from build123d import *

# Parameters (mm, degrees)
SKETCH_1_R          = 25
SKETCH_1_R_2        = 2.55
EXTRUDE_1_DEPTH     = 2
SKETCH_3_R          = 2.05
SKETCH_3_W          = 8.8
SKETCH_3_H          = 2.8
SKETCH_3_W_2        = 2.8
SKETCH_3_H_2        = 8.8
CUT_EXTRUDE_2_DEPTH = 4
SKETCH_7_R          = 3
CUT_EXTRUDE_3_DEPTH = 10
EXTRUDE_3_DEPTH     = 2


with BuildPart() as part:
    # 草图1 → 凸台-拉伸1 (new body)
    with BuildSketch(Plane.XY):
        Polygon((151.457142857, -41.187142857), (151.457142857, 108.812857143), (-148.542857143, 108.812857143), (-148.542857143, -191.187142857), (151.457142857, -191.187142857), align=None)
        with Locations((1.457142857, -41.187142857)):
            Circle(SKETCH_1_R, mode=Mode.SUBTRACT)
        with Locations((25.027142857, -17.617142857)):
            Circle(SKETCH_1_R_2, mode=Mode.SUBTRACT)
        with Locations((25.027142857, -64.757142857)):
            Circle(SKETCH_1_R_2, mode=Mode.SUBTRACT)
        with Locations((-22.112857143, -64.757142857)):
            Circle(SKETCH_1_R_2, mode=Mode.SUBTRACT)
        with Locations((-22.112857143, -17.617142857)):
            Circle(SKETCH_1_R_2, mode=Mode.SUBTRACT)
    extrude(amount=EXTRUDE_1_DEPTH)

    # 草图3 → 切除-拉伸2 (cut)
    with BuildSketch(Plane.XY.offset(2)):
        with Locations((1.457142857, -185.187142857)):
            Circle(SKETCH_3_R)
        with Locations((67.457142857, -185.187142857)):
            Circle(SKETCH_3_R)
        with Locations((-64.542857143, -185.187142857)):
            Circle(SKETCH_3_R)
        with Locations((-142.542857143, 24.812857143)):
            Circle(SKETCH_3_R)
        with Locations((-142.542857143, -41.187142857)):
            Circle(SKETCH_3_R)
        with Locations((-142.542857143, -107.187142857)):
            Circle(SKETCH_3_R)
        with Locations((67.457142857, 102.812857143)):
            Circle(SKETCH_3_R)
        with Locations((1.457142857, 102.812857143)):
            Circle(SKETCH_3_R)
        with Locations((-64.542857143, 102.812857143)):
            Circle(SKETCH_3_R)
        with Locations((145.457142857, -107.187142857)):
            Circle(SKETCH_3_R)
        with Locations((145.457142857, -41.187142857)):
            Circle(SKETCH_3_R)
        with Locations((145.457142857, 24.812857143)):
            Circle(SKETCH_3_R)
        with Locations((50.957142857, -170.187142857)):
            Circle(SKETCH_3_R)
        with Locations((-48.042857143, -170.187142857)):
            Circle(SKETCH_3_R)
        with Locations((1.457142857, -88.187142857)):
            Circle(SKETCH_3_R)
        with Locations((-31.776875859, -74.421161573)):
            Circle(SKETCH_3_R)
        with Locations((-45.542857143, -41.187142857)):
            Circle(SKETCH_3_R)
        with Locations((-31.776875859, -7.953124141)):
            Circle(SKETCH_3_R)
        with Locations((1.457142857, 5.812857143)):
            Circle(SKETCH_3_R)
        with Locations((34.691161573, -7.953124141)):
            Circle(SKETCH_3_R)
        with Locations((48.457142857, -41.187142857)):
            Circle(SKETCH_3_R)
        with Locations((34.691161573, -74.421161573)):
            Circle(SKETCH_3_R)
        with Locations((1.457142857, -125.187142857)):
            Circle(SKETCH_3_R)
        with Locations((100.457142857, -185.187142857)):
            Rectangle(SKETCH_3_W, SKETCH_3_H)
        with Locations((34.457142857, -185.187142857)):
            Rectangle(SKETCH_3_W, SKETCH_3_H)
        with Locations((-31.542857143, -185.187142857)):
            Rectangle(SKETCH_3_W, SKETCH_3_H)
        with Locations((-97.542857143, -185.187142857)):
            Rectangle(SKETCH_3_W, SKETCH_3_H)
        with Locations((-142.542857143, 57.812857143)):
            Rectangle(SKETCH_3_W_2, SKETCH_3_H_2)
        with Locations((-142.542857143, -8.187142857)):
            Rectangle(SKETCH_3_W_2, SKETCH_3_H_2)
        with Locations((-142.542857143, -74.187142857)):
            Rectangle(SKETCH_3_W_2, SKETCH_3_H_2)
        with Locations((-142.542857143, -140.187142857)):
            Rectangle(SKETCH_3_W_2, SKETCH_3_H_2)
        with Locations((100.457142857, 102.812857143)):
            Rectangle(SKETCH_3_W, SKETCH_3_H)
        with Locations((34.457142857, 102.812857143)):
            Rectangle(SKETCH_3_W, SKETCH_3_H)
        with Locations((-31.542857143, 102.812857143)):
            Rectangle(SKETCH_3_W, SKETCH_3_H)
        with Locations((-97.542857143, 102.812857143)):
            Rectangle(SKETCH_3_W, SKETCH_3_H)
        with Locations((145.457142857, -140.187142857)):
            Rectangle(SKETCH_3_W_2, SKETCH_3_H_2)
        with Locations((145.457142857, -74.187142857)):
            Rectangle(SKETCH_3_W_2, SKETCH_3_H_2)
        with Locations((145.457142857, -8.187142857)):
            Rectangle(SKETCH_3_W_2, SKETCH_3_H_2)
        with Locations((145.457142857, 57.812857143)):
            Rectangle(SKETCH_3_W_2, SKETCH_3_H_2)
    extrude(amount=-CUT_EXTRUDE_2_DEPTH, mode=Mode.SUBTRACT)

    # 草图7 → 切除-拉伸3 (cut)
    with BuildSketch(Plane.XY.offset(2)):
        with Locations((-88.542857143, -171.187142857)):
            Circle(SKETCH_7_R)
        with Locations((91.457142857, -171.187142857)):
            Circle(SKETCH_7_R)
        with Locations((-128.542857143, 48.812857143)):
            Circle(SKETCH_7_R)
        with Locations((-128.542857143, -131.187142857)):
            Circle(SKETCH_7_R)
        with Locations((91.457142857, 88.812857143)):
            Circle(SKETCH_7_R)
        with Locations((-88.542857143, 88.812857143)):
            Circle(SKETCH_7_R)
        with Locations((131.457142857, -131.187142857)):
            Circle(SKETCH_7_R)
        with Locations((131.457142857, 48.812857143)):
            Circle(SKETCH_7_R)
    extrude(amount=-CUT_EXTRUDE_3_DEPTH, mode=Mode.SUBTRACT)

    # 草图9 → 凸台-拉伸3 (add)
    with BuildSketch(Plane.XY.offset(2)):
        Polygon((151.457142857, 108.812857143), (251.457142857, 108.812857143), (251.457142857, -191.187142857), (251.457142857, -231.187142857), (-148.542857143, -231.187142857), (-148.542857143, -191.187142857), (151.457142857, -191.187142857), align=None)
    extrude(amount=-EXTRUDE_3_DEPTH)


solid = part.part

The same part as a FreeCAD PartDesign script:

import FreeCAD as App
import Part
import Sketcher
Q = App.Units.Quantity

doc = App.newDocument("Part")
params = doc.addObject("Spreadsheet::Sheet", "Params")
for row, (alias, value) in enumerate([
    ("sketch1_diameter", "50 mm"),
    ("sketch1_diameter2", "5.1 mm"),
    ("sketch1_width", "300 mm"),
    ("pad1_length", "2 mm"),
    ("sketch2_diameter", "4.1 mm"),
    ("sketch2_width", "8.8 mm"),
    ("sketch2_width2", "2.8 mm"),
    ("pocket1_length", "4 mm"),
    ("sketch3_diameter", "6 mm"),
    ("pocket2_length", "10 mm"),
    ("sketch4_width", "100 mm"),
    ("sketch4_width2", "300 mm"),
    ("sketch4_height", "40 mm"),
    ("pad2_length", "2 mm"),
], start=1):
    params.set(f"A{row}", alias)
    params.set(f"B{row}", "=" + value)
    params.setAlias(f"B{row}", alias)

body = doc.addObject("PartDesign::Body", "Body")

sketch1 = doc.addObject("Sketcher::SketchObject", "Sketch")
body.addObject(sketch1)
sketch1.AttachmentSupport = (doc.XY_Plane, [""])
sketch1.MapMode = "FlatFace"
sketch1.addGeometry(Part.LineSegment(App.Vector(151.5, 108.8, 0), App.Vector(-148.5, 108.8, 0)), False)
sketch1.addGeometry(Part.LineSegment(App.Vector(-148.5, 108.8, 0), App.Vector(-148.5, -191.2, 0)), False)
sketch1.addGeometry(Part.LineSegment(App.Vector(-148.5, -191.2, 0), App.Vector(151.5, -191.2, 0)), False)
sketch1.addGeometry(Part.LineSegment(App.Vector(151.5, -191.2, 0), App.Vector(151.5, 108.8, 0)), False)
sketch1.addGeometry(Part.Circle(App.Vector(-22.1, -64.8, 0), App.Vector(0, 0, 1), 2.5), False)
sketch1.addGeometry(Part.Circle(App.Vector(25, -64.8, 0), App.Vector(0, 0, 1), 2.5), False)
sketch1.addGeometry(Part.Circle(App.Vector(1.5, -41.2, 0), App.Vector(0, 0, 1), 25), False)
sketch1.addGeometry(Part.Circle(App.Vector(-22.1, -17.6, 0), App.Vector(0, 0, 1), 2.5), False)
sketch1.addGeometry(Part.Circle(App.Vector(25, -17.6, 0), App.Vector(0, 0, 1), 2.5), False)
sketch1.addConstraint(Sketcher.Constraint("Coincident", 0, 2, 1, 1))
sketch1.addConstraint(Sketcher.Constraint("Coincident", 1, 2, 2, 1))
sketch1.addConstraint(Sketcher.Constraint("Coincident", 2, 2, 3, 1))
sketch1.addConstraint(Sketcher.Constraint("Coincident", 3, 2, 0, 1))
sketch1.addConstraint(Sketcher.Constraint("Horizontal", 0))
sketch1.addConstraint(Sketcher.Constraint("Vertical", 1))
sketch1.addConstraint(Sketcher.Constraint("Horizontal", 2))
sketch1.addConstraint(Sketcher.Constraint("Vertical", 3))
sketch1.addConstraint(Sketcher.Constraint("Equal", 4, 5))
sketch1.addConstraint(Sketcher.Constraint("Equal", 5, 7))
sketch1.addConstraint(Sketcher.Constraint("Equal", 7, 8))
sketch1.addConstraint(Sketcher.Constraint("Horizontal", 4, 3, 5, 3))
sketch1.addConstraint(Sketcher.Constraint("Horizontal", 7, 3, 8, 3))
sketch1.addConstraint(Sketcher.Constraint("Vertical", 4, 3, 7, 3))
sketch1.addConstraint(Sketcher.Constraint("Vertical", 5, 3, 8, 3))
sketch1.addConstraint(Sketcher.Constraint("Equal", 2, 1))
sketch1.addConstraint(Sketcher.Constraint("Diameter", 6, Q("50 mm")))
sketch1.addConstraint(Sketcher.Constraint("Diameter", 4, Q("5.1 mm")))
sketch1.addConstraint(Sketcher.Constraint("DistanceX", 0, 2, 0, 1, Q("300 mm")))
sketch1.addConstraint(Sketcher.Constraint("DistanceX", 0, 2, 6, 3, Q("150 mm")))
sketch1.addConstraint(Sketcher.Constraint("DistanceY", 6, 3, 0, 2, Q("150 mm")))
sketch1.addConstraint(Sketcher.Constraint("DistanceX", 4, 3, 5, 3, Q("47.14 mm")))
sketch1.addConstraint(Sketcher.Constraint("DistanceX", 4, 3, 6, 3, Q("23.57 mm")))
sketch1.addConstraint(Sketcher.Constraint("DistanceY", 4, 3, 6, 3, Q("23.57 mm")))
sketch1.addConstraint(Sketcher.Constraint("DistanceY", 6, 3, 7, 3, Q("23.57 mm")))
sketch1.addConstraint(Sketcher.Constraint("DistanceX", 4, 3, -1, 1, Q("22.112857 mm")))
sketch1.addConstraint(Sketcher.Constraint("DistanceY", 4, 3, -1, 1, Q("64.757143 mm")))
sketch1.setExpression("Constraints[16]", "Params.sketch1_diameter")
sketch1.setExpression("Constraints[17]", "Params.sketch1_diameter2")
sketch1.setExpression("Constraints[18]", "Params.sketch1_width")
pad1 = doc.addObject("PartDesign::Pad", "Pad")
body.addObject(pad1)
pad1.Profile = sketch1
pad1.setExpression("Length", "Params.pad1_length")

sketch2 = doc.addObject("Sketcher::SketchObject", "Sketch001")
body.addObject(sketch2)
sketch2.AttachmentSupport = (doc.XY_Plane, [""])
sketch2.MapMode = "FlatFace"
sketch2.AttachmentOffset = App.Placement(App.Vector(0, 0, 2), App.Rotation())
sketch2.addGeometry(Part.Circle(App.Vector(1.5, -185.2, 0), App.Vector(0, 0, 1), 2), False)
sketch2.addGeometry(Part.Circle(App.Vector(67.5, -185.2, 0), App.Vector(0, 0, 1), 2), False)
sketch2.addGeometry(Part.Circle(App.Vector(-64.5, -185.2, 0), App.Vector(0, 0, 1), 2), False)
sketch2.addGeometry(Part.Circle(App.Vector(-142.5, 24.8, 0), App.Vector(0, 0, 1), 2), False)
sketch2.addGeometry(Part.Circle(App.Vector(-142.5, -41.2, 0), App.Vector(0, 0, 1), 2), False)
sketch2.addGeometry(Part.Circle(App.Vector(-142.5, -107.2, 0), App.Vector(0, 0, 1), 2), False)
sketch2.addGeometry(Part.Circle(App.Vector(67.5, 102.8, 0), App.Vector(0, 0, 1), 2), False)
sketch2.addGeometry(Part.Circle(App.Vector(1.5, 102.8, 0), App.Vector(0, 0, 1), 2), False)
sketch2.addGeometry(Part.Circle(App.Vector(-64.5, 102.8, 0), App.Vector(0, 0, 1), 2), False)
sketch2.addGeometry(Part.Circle(App.Vector(145.5, -107.2, 0), App.Vector(0, 0, 1), 2), False)
sketch2.addGeometry(Part.Circle(App.Vector(145.5, -41.2, 0), App.Vector(0, 0, 1), 2), False)
sketch2.addGeometry(Part.Circle(App.Vector(145.5, 24.8, 0), App.Vector(0, 0, 1), 2), False)
sketch2.addGeometry(Part.Circle(App.Vector(51, -170.2, 0), App.Vector(0, 0, 1), 2), False)
sketch2.addGeometry(Part.Circle(App.Vector(-48, -170.2, 0), App.Vector(0, 0, 1), 2), False)
sketch2.addGeometry(Part.Circle(App.Vector(1.5, -88.2, 0), App.Vector(0, 0, 1), 2), False)
sketch2.addGeometry(Part.Circle(App.Vector(-31.8, -74.4, 0), App.Vector(0, 0, 1), 2), False)
sketch2.addGeometry(Part.Circle(App.Vector(-45.5, -41.2, 0), App.Vector(0, 0, 1), 2), False)
sketch2.addGeometry(Part.Circle(App.Vector(-31.8, -8, 0), App.Vector(0, 0, 1), 2), False)
sketch2.addGeometry(Part.Circle(App.Vector(1.5, 5.8, 0), App.Vector(0, 0, 1), 2), False)
sketch2.addGeometry(Part.Circle(App.Vector(34.7, -8, 0), App.Vector(0, 0, 1), 2), False)
sketch2.addGeometry(Part.Circle(App.Vector(48.5, -41.2, 0), App.Vector(0, 0, 1), 2), False)
sketch2.addGeometry(Part.Circle(App.Vector(34.7, -74.4, 0), App.Vector(0, 0, 1), 2), False)
sketch2.addGeometry(Part.Circle(App.Vector(1.5, -125.2, 0), App.Vector(0, 0, 1), 2), False)
sketch2.addGeometry(Part.LineSegment(App.Vector(96.1, -183.8, 0), App.Vector(96.1, -186.6, 0)), False)
sketch2.addGeometry(Part.LineSegment(App.Vector(96.1, -186.6, 0), App.Vector(104.9, -186.6, 0)), False)
sketch2.addGeometry(Part.LineSegment(App.Vector(104.9, -186.6, 0), App.Vector(104.9, -183.8, 0)), False)
sketch2.addGeometry(Part.LineSegment(App.Vector(104.9, -183.8, 0), App.Vector(96.1, -183.8, 0)), False)
sketch2.addGeometry(Part.LineSegment(App.Vector(30.1, -183.8, 0), App.Vector(30.1, -186.6, 0)), False)
sketch2.addGeometry(Part.LineSegment(App.Vector(30.1, -186.6, 0), App.Vector(38.9, -186.6, 0)), False)
sketch2.addGeometry(Part.LineSegment(App.Vector(38.9, -186.6, 0), App.Vector(38.9, -183.8, 0)), False)
sketch2.addGeometry(Part.LineSegment(App.Vector(38.9, -183.8, 0), App.Vector(30.1, -183.8, 0)), False)
sketch2.addGeometry(Part.LineSegment(App.Vector(-35.9, -183.8, 0), App.Vector(-35.9, -186.6, 0)), False)
sketch2.addGeometry(Part.LineSegment(App.Vector(-35.9, -186.6, 0), App.Vector(-27.1, -186.6, 0)), False)
sketch2.addGeometry(Part.LineSegment(App.Vector(-27.1, -186.6, 0), App.Vector(-27.1, -183.8, 0)), False)
sketch2.addGeometry(Part.LineSegment(App.Vector(-27.1, -183.8, 0), App.Vector(-35.9, -183.8, 0)), False)
sketch2.addGeometry(Part.LineSegment(App.Vector(-101.9, -183.8, 0), App.Vector(-101.9, -186.6, 0)), False)
sketch2.addGeometry(Part.LineSegment(App.Vector(-101.9, -186.6, 0), App.Vector(-93.1, -186.6, 0)), False)
sketch2.addGeometry(Part.LineSegment(App.Vector(-93.1, -186.6, 0), App.Vector(-93.1, -183.8, 0)), False)
sketch2.addGeometry(Part.LineSegment(App.Vector(-93.1, -183.8, 0), App.Vector(-101.9, -183.8, 0)), False)
sketch2.addGeometry(Part.LineSegment(App.Vector(-143.9, 62.2, 0), App.Vector(-143.9, 53.4, 0)), False)
sketch2.addGeometry(Part.LineSegment(App.Vector(-143.9, 53.4, 0), App.Vector(-141.1, 53.4, 0)), False)
sketch2.addGeometry(Part.LineSegment(App.Vector(-141.1, 53.4, 0), App.Vector(-141.1, 62.2, 0)), False)
sketch2.addGeometry(Part.LineSegment(App.Vector(-141.1, 62.2, 0), App.Vector(-143.9, 62.2, 0)), False)
sketch2.addGeometry(Part.LineSegment(App.Vector(-143.9, -3.8, 0), App.Vector(-143.9, -12.6, 0)), False)
sketch2.addGeometry(Part.LineSegment(App.Vector(-143.9, -12.6, 0), App.Vector(-141.1, -12.6, 0)), False)
sketch2.addGeometry(Part.LineSegment(App.Vector(-141.1, -12.6, 0), App.Vector(-141.1, -3.8, 0)), False)
sketch2.addGeometry(Part.LineSegment(App.Vector(-141.1, -3.8, 0), App.Vector(-143.9, -3.8, 0)), False)
sketch2.addGeometry(Part.LineSegment(App.Vector(-143.9, -69.8, 0), App.Vector(-143.9, -78.6, 0)), False)
sketch2.addGeometry(Part.LineSegment(App.Vector(-143.9, -78.6, 0), App.Vector(-141.1, -78.6, 0)), False)
sketch2.addGeometry(Part.LineSegment(App.Vector(-141.1, -78.6, 0), App.Vector(-141.1, -69.8, 0)), False)
sketch2.addGeometry(Part.LineSegment(App.Vector(-141.1, -69.8, 0), App.Vector(-143.9, -69.8, 0)), False)
sketch2.addGeometry(Part.LineSegment(App.Vector(-143.9, -135.8, 0), App.Vector(-143.9, -144.6, 0)), False)
sketch2.addGeometry(Part.LineSegment(App.Vector(-143.9, -144.6, 0), App.Vector(-141.1, -144.6, 0)), False)
sketch2.addGeometry(Part.LineSegment(App.Vector(-141.1, -144.6, 0), App.Vector(-141.1, -135.8, 0)), False)
sketch2.addGeometry(Part.LineSegment(App.Vector(-141.1, -135.8, 0), App.Vector(-143.9, -135.8, 0)), False)
sketch2.addGeometry(Part.LineSegment(App.Vector(96.1, 104.2, 0), App.Vector(96.1, 101.4, 0)), False)
sketch2.addGeometry(Part.LineSegment(App.Vector(96.1, 101.4, 0), App.Vector(104.9, 101.4, 0)), False)
sketch2.addGeometry(Part.LineSegment(App.Vector(104.9, 101.4, 0), App.Vector(104.9, 104.2, 0)), False)
sketch2.addGeometry(Part.LineSegment(App.Vector(104.9, 104.2, 0), App.Vector(96.1, 104.2, 0)), False)
sketch2.addGeometry(Part.LineSegment(App.Vector(30.1, 104.2, 0), App.Vector(30.1, 101.4, 0)), False)
sketch2.addGeometry(Part.LineSegment(App.Vector(30.1, 101.4, 0), App.Vector(38.9, 101.4, 0)), False)
sketch2.addGeometry(Part.LineSegment(App.Vector(38.9, 101.4, 0), App.Vector(38.9, 104.2, 0)), False)
sketch2.addGeometry(Part.LineSegment(App.Vector(38.9, 104.2, 0), App.Vector(30.1, 104.2, 0)), False)
sketch2.addGeometry(Part.LineSegment(App.Vector(-35.9, 104.2, 0), App.Vector(-35.9, 101.4, 0)), False)
sketch2.addGeometry(Part.LineSegment(App.Vector(-35.9, 101.4, 0), App.Vector(-27.1, 101.4, 0)), False)
sketch2.addGeometry(Part.LineSegment(App.Vector(-27.1, 101.4, 0), App.Vector(-27.1, 104.2, 0)), False)
sketch2.addGeometry(Part.LineSegment(App.Vector(-27.1, 104.2, 0), App.Vector(-35.9, 104.2, 0)), False)
sketch2.addGeometry(Part.LineSegment(App.Vector(-101.9, 104.2, 0), App.Vector(-101.9, 101.4, 0)), False)
sketch2.addGeometry(Part.LineSegment(App.Vector(-101.9, 101.4, 0), App.Vector(-93.1, 101.4, 0)), False)
sketch2.addGeometry(Part.LineSegment(App.Vector(-93.1, 101.4, 0), App.Vector(-93.1, 104.2, 0)), False)
sketch2.addGeometry(Part.LineSegment(App.Vector(-93.1, 104.2, 0), App.Vector(-101.9, 104.2, 0)), False)
sketch2.addGeometry(Part.LineSegment(App.Vector(144.1, -135.8, 0), App.Vector(144.1, -144.6, 0)), False)
sketch2.addGeometry(Part.LineSegment(App.Vector(144.1, -144.6, 0), App.Vector(146.9, -144.6, 0)), False)
sketch2.addGeometry(Part.LineSegment(App.Vector(146.9, -144.6, 0), App.Vector(146.9, -135.8, 0)), False)
sketch2.addGeometry(Part.LineSegment(App.Vector(146.9, -135.8, 0), App.Vector(144.1, -135.8, 0)), False)
sketch2.addGeometry(Part.LineSegment(App.Vector(144.1, -69.8, 0), App.Vector(144.1, -78.6, 0)), False)
sketch2.addGeometry(Part.LineSegment(App.Vector(144.1, -78.6, 0), App.Vector(146.9, -78.6, 0)), False)
sketch2.addGeometry(Part.LineSegment(App.Vector(146.9, -78.6, 0), App.Vector(146.9, -69.8, 0)), False)
sketch2.addGeometry(Part.LineSegment(App.Vector(146.9, -69.8, 0), App.Vector(144.1, -69.8, 0)), False)
sketch2.addGeometry(Part.LineSegment(App.Vector(144.1, -3.8, 0), App.Vector(144.1, -12.6, 0)), False)
sketch2.addGeometry(Part.LineSegment(App.Vector(144.1, -12.6, 0), App.Vector(146.9, -12.6, 0)), False)
sketch2.addGeometry(Part.LineSegment(App.Vector(146.9, -12.6, 0), App.Vector(146.9, -3.8, 0)), False)
sketch2.addGeometry(Part.LineSegment(App.Vector(146.9, -3.8, 0), App.Vector(144.1, -3.8, 0)), False)
sketch2.addGeometry(Part.LineSegment(App.Vector(144.1, 62.2, 0), App.Vector(144.1, 53.4, 0)), False)
sketch2.addGeometry(Part.LineSegment(App.Vector(144.1, 53.4, 0), App.Vector(146.9, 53.4, 0)), False)
sketch2.addGeometry(Part.LineSegment(App.Vector(146.9, 53.4, 0), App.Vector(146.9, 62.2, 0)), False)
sketch2.addGeometry(Part.LineSegment(App.Vector(146.9, 62.2, 0), App.Vector(144.1, 62.2, 0)), False)
sketch2.addConstraint(Sketcher.Constraint("Coincident", 23, 2, 24, 1))
sketch2.addConstraint(Sketcher.Constraint("Coincident", 24, 2, 25, 1))
sketch2.addConstraint(Sketcher.Constraint("Coincident", 25, 2, 26, 1))
sketch2.addConstraint(Sketcher.Constraint("Coincident", 26, 2, 23, 1))
sketch2.addConstraint(Sketcher.Constraint("Coincident", 27, 2, 28, 1))
sketch2.addConstraint(Sketcher.Constraint("Coincident", 28, 2, 29, 1))
sketch2.addConstraint(Sketcher.Constraint("Coincident", 29, 2, 30, 1))
sketch2.addConstraint(Sketcher.Constraint("Coincident", 30, 2, 27, 1))
sketch2.addConstraint(Sketcher.Constraint("Coincident", 31, 2, 32, 1))
sketch2.addConstraint(Sketcher.Constraint("Coincident", 32, 2, 33, 1))
sketch2.addConstraint(Sketcher.Constraint("Coincident", 33, 2, 34, 1))
sketch2.addConstraint(Sketcher.Constraint("Coincident", 34, 2, 31, 1))
sketch2.addConstraint(Sketcher.Constraint("Coincident", 35, 2, 36, 1))
sketch2.addConstraint(Sketcher.Constraint("Coincident", 36, 2, 37, 1))
sketch2.addConstraint(Sketcher.Constraint("Coincident", 37, 2, 38, 1))
sketch2.addConstraint(Sketcher.Constraint("Coincident", 38, 2, 35, 1))
sketch2.addConstraint(Sketcher.Constraint("Coincident", 39, 2, 40, 1))
sketch2.addConstraint(Sketcher.Constraint("Coincident", 40, 2, 41, 1))
sketch2.addConstraint(Sketcher.Constraint("Coincident", 41, 2, 42, 1))
sketch2.addConstraint(Sketcher.Constraint("Coincident", 42, 2, 39, 1))
sketch2.addConstraint(Sketcher.Constraint("Coincident", 43, 2, 44, 1))
sketch2.addConstraint(Sketcher.Constraint("Coincident", 44, 2, 45, 1))
sketch2.addConstraint(Sketcher.Constraint("Coincident", 45, 2, 46, 1))
sketch2.addConstraint(Sketcher.Constraint("Coincident", 46, 2, 43, 1))
sketch2.addConstraint(Sketcher.Constraint("Coincident", 47, 2, 48, 1))
sketch2.addConstraint(Sketcher.Constraint("Coincident", 48, 2, 49, 1))
sketch2.addConstraint(Sketcher.Constraint("Coincident", 49, 2, 50, 1))
sketch2.addConstraint(Sketcher.Constraint("Coincident", 50, 2, 47, 1))
sketch2.addConstraint(Sketcher.Constraint("Coincident", 51, 2, 52, 1))
sketch2.addConstraint(Sketcher.Constraint("Coincident", 52, 2, 53, 1))
sketch2.addConstraint(Sketcher.Constraint("Coincident", 53, 2, 54, 1))
sketch2.addConstraint(Sketcher.Constraint("Coincident", 54, 2, 51, 1))
sketch2.addConstraint(Sketcher.Constraint("Coincident", 55, 2, 56, 1))
sketch2.addConstraint(Sketcher.Constraint("Coincident", 56, 2, 57, 1))
sketch2.addConstraint(Sketcher.Constraint("Coincident", 57, 2, 58, 1))
sketch2.addConstraint(Sketcher.Constraint("Coincident", 58, 2, 55, 1))
sketch2.addConstraint(Sketcher.Constraint("Coincident", 59, 2, 60, 1))
sketch2.addConstraint(Sketcher.Constraint("Coincident", 60, 2, 61, 1))
sketch2.addConstraint(Sketcher.Constraint("Coincident", 61, 2, 62, 1))
sketch2.addConstraint(Sketcher.Constraint("Coincident", 62, 2, 59, 1))
sketch2.addConstraint(Sketcher.Constraint("Coincident", 63, 2, 64, 1))
sketch2.addConstraint(Sketcher.Constraint("Coincident", 64, 2, 65, 1))
sketch2.addConstraint(Sketcher.Constraint("Coincident", 65, 2, 66, 1))
sketch2.addConstraint(Sketcher.Constraint("Coincident", 66, 2, 63, 1))
sketch2.addConstraint(Sketcher.Constraint("Coincident", 67, 2, 68, 1))
sketch2.addConstraint(Sketcher.Constraint("Coincident", 68, 2, 69, 1))
sketch2.addConstraint(Sketcher.Constraint("Coincident", 69, 2, 70, 1))
sketch2.addConstraint(Sketcher.Constraint("Coincident", 70, 2, 67, 1))
sketch2.addConstraint(Sketcher.Constraint("Coincident", 71, 2, 72, 1))
sketch2.addConstraint(Sketcher.Constraint("Coincident", 72, 2, 73, 1))
sketch2.addConstraint(Sketcher.Constraint("Coincident", 73, 2, 74, 1))
sketch2.addConstraint(Sketcher.Constraint("Coincident", 74, 2, 71, 1))
sketch2.addConstraint(Sketcher.Constraint("Coincident", 75, 2, 76, 1))
sketch2.addConstraint(Sketcher.Constraint("Coincident", 76, 2, 77, 1))
sketch2.addConstraint(Sketcher.Constraint("Coincident", 77, 2, 78, 1))
sketch2.addConstraint(Sketcher.Constraint("Coincident", 78, 2, 75, 1))
sketch2.addConstraint(Sketcher.Constraint("Coincident", 79, 2, 80, 1))
sketch2.addConstraint(Sketcher.Constraint("Coincident", 80, 2, 81, 1))
sketch2.addConstraint(Sketcher.Constraint("Coincident", 81, 2, 82, 1))
sketch2.addConstraint(Sketcher.Constraint("Coincident", 82, 2, 79, 1))
sketch2.addConstraint(Sketcher.Constraint("Coincident", 83, 2, 84, 1))
sketch2.addConstraint(Sketcher.Constraint("Coincident", 84, 2, 85, 1))
sketch2.addConstraint(Sketcher.Constraint("Coincident", 85, 2, 86, 1))
sketch2.addConstraint(Sketcher.Constraint("Coincident", 86, 2, 83, 1))
sketch2.addConstraint(Sketcher.Constraint("Vertical", 23))
sketch2.addConstraint(Sketcher.Constraint("Horizontal", 24))
sketch2.addConstraint(Sketcher.Constraint("Vertical", 25))
sketch2.addConstraint(Sketcher.Constraint("Horizontal", 26))
sketch2.addConstraint(Sketcher.Constraint("Vertical", 27))
sketch2.addConstraint(Sketcher.Constraint("Horizontal", 28))
sketch2.addConstraint(Sketcher.Constraint("Vertical", 29))
sketch2.addConstraint(Sketcher.Constraint("Horizontal", 30))
sketch2.addConstraint(Sketcher.Constraint("Vertical", 31))
sketch2.addConstraint(Sketcher.Constraint("Horizontal", 32))
sketch2.addConstraint(Sketcher.Constraint("Vertical", 33))
sketch2.addConstraint(Sketcher.Constraint("Horizontal", 34))
sketch2.addConstraint(Sketcher.Constraint("Vertical", 35))
sketch2.addConstraint(Sketcher.Constraint("Horizontal", 36))
sketch2.addConstraint(Sketcher.Constraint("Vertical", 37))
sketch2.addConstraint(Sketcher.Constraint("Horizontal", 38))
sketch2.addConstraint(Sketcher.Constraint("Vertical", 39))
sketch2.addConstraint(Sketcher.Constraint("Horizontal", 40))
sketch2.addConstraint(Sketcher.Constraint("Vertical", 41))
sketch2.addConstraint(Sketcher.Constraint("Horizontal", 42))
sketch2.addConstraint(Sketcher.Constraint("Vertical", 43))
sketch2.addConstraint(Sketcher.Constraint("Horizontal", 44))
sketch2.addConstraint(Sketcher.Constraint("Vertical", 45))
sketch2.addConstraint(Sketcher.Constraint("Horizontal", 46))
sketch2.addConstraint(Sketcher.Constraint("Vertical", 47))
sketch2.addConstraint(Sketcher.Constraint("Horizontal", 48))
sketch2.addConstraint(Sketcher.Constraint("Vertical", 49))
sketch2.addConstraint(Sketcher.Constraint("Horizontal", 50))
sketch2.addConstraint(Sketcher.Constraint("Vertical", 51))
sketch2.addConstraint(Sketcher.Constraint("Horizontal", 52))
sketch2.addConstraint(Sketcher.Constraint("Vertical", 53))
sketch2.addConstraint(Sketcher.Constraint("Horizontal", 54))
sketch2.addConstraint(Sketcher.Constraint("Vertical", 55))
sketch2.addConstraint(Sketcher.Constraint("Horizontal", 56))
sketch2.addConstraint(Sketcher.Constraint("Vertical", 57))
sketch2.addConstraint(Sketcher.Constraint("Horizontal", 58))
sketch2.addConstraint(Sketcher.Constraint("Vertical", 59))
sketch2.addConstraint(Sketcher.Constraint("Horizontal", 60))
sketch2.addConstraint(Sketcher.Constraint("Vertical", 61))
sketch2.addConstraint(Sketcher.Constraint("Horizontal", 62))
sketch2.addConstraint(Sketcher.Constraint("Vertical", 63))
sketch2.addConstraint(Sketcher.Constraint("Horizontal", 64))
sketch2.addConstraint(Sketcher.Constraint("Vertical", 65))
sketch2.addConstraint(Sketcher.Constraint("Horizontal", 66))
sketch2.addConstraint(Sketcher.Constraint("Vertical", 67))
sketch2.addConstraint(Sketcher.Constraint("Horizontal", 68))
sketch2.addConstraint(Sketcher.Constraint("Vertical", 69))
sketch2.addConstraint(Sketcher.Constraint("Horizontal", 70))
sketch2.addConstraint(Sketcher.Constraint("Vertical", 71))
sketch2.addConstraint(Sketcher.Constraint("Horizontal", 72))
sketch2.addConstraint(Sketcher.Constraint("Vertical", 73))
sketch2.addConstraint(Sketcher.Constraint("Horizontal", 74))
sketch2.addConstraint(Sketcher.Constraint("Vertical", 75))
sketch2.addConstraint(Sketcher.Constraint("Horizontal", 76))
sketch2.addConstraint(Sketcher.Constraint("Vertical", 77))
sketch2.addConstraint(Sketcher.Constraint("Horizontal", 78))
sketch2.addConstraint(Sketcher.Constraint("Vertical", 79))
sketch2.addConstraint(Sketcher.Constraint("Horizontal", 80))
sketch2.addConstraint(Sketcher.Constraint("Vertical", 81))
sketch2.addConstraint(Sketcher.Constraint("Horizontal", 82))
sketch2.addConstraint(Sketcher.Constraint("Vertical", 83))
sketch2.addConstraint(Sketcher.Constraint("Horizontal", 84))
sketch2.addConstraint(Sketcher.Constraint("Vertical", 85))
sketch2.addConstraint(Sketcher.Constraint("Horizontal", 86))
sketch2.addConstraint(Sketcher.Constraint("Equal", 0, 1))
sketch2.addConstraint(Sketcher.Constraint("Equal", 1, 2))
sketch2.addConstraint(Sketcher.Constraint("Equal", 2, 3))
sketch2.addConstraint(Sketcher.Constraint("Equal", 3, 4))
sketch2.addConstraint(Sketcher.Constraint("Equal", 4, 5))
sketch2.addConstraint(Sketcher.Constraint("Equal", 5, 6))
sketch2.addConstraint(Sketcher.Constraint("Equal", 6, 7))
sketch2.addConstraint(Sketcher.Constraint("Equal", 7, 8))
sketch2.addConstraint(Sketcher.Constraint("Equal", 8, 9))
sketch2.addConstraint(Sketcher.Constraint("Equal", 9, 10))
sketch2.addConstraint(Sketcher.Constraint("Equal", 10, 11))
sketch2.addConstraint(Sketcher.Constraint("Equal", 11, 12))
sketch2.addConstraint(Sketcher.Constraint("Equal", 12, 13))
sketch2.addConstraint(Sketcher.Constraint("Equal", 13, 14))
sketch2.addConstraint(Sketcher.Constraint("Equal", 14, 15))
sketch2.addConstraint(Sketcher.Constraint("Equal", 15, 16))
sketch2.addConstraint(Sketcher.Constraint("Equal", 16, 17))
sketch2.addConstraint(Sketcher.Constraint("Equal", 17, 18))
sketch2.addConstraint(Sketcher.Constraint("Equal", 18, 19))
sketch2.addConstraint(Sketcher.Constraint("Equal", 19, 20))
sketch2.addConstraint(Sketcher.Constraint("Equal", 20, 21))
sketch2.addConstraint(Sketcher.Constraint("Equal", 21, 22))
sketch2.addConstraint(Sketcher.Constraint("Horizontal", 0, 3, 1, 3))
sketch2.addConstraint(Sketcher.Constraint("Horizontal", 1, 3, 2, 3))
sketch2.addConstraint(Sketcher.Constraint("Horizontal", 6, 3, 7, 3))
sketch2.addConstraint(Sketcher.Constraint("Horizontal", 7, 3, 8, 3))
sketch2.addConstraint(Sketcher.Constraint("Horizontal", 5, 3, 9, 3))
sketch2.addConstraint(Sketcher.Constraint("Horizontal", 4, 3, 10, 3))
sketch2.addConstraint(Sketcher.Constraint("Horizontal", 3, 3, 11, 3))
sketch2.addConstraint(Sketcher.Constraint("Horizontal", 12, 3, 13, 3))
sketch2.addConstraint(Sketcher.Constraint("Horizontal", 10, 3, 16, 3))
sketch2.addConstraint(Sketcher.Constraint("Horizontal", 17, 3, 19, 3))
sketch2.addConstraint(Sketcher.Constraint("Horizontal", 16, 3, 20, 3))
sketch2.addConstraint(Sketcher.Constraint("Horizontal", 15, 3, 21, 3))
sketch2.addConstraint(Sketcher.Constraint("Horizontal", 24, 2, 27, 2))
sketch2.addConstraint(Sketcher.Constraint("Horizontal", 26, 2, 29, 2))
sketch2.addConstraint(Sketcher.Constraint("Horizontal", 28, 2, 31, 2))
sketch2.addConstraint(Sketcher.Constraint("Horizontal", 30, 2, 33, 2))
sketch2.addConstraint(Sketcher.Constraint("Horizontal", 32, 2, 35, 2))
sketch2.addConstraint(Sketcher.Constraint("Horizontal", 34, 2, 37, 2))
sketch2.addConstraint(Sketcher.Constraint("Horizontal", 56, 2, 59, 2))
sketch2.addConstraint(Sketcher.Constraint("Horizontal", 58, 2, 61, 2))
sketch2.addConstraint(Sketcher.Constraint("Horizontal", 60, 2, 63, 2))
sketch2.addConstraint(Sketcher.Constraint("Horizontal", 62, 2, 65, 2))
sketch2.addConstraint(Sketcher.Constraint("Horizontal", 64, 2, 67, 2))
sketch2.addConstraint(Sketcher.Constraint("Horizontal", 66, 2, 69, 2))
sketch2.addConstraint(Sketcher.Constraint("Horizontal", 52, 2, 71, 2))
sketch2.addConstraint(Sketcher.Constraint("Horizontal", 54, 2, 73, 2))
sketch2.addConstraint(Sketcher.Constraint("Horizontal", 48, 2, 75, 2))
sketch2.addConstraint(Sketcher.Constraint("Horizontal", 50, 2, 77, 2))
sketch2.addConstraint(Sketcher.Constraint("Horizontal", 44, 2, 79, 2))
sketch2.addConstraint(Sketcher.Constraint("Horizontal", 46, 2, 81, 2))
sketch2.addConstraint(Sketcher.Constraint("Horizontal", 40, 2, 83, 2))
sketch2.addConstraint(Sketcher.Constraint("Horizontal", 42, 2, 85, 2))
sketch2.addConstraint(Sketcher.Constraint("Vertical", 3, 3, 4, 3))
sketch2.addConstraint(Sketcher.Constraint("Vertical", 4, 3, 5, 3))
sketch2.addConstraint(Sketcher.Constraint("Vertical", 1, 3, 6, 3))
sketch2.addConstraint(Sketcher.Constraint("Vertical", 0, 3, 7, 3))
sketch2.addConstraint(Sketcher.Constraint("Vertical", 2, 3, 8, 3))
sketch2.addConstraint(Sketcher.Constraint("Vertical", 9, 3, 10, 3))
sketch2.addConstraint(Sketcher.Constraint("Vertical", 10, 3, 11, 3))
sketch2.addConstraint(Sketcher.Constraint("Vertical", 7, 3, 14, 3))
sketch2.addConstraint(Sketcher.Constraint("Vertical", 15, 3, 17, 3))
sketch2.addConstraint(Sketcher.Constraint("Vertical", 14, 3, 18, 3))
sketch2.addConstraint(Sketcher.Constraint("Vertical", 19, 3, 21, 3))
sketch2.addConstraint(Sketcher.Constraint("Vertical", 18, 3, 22, 3))
sketch2.addConstraint(Sketcher.Constraint("Vertical", 42, 2, 43, 2))
sketch2.addConstraint(Sketcher.Constraint("Vertical", 41, 2, 44, 2))
sketch2.addConstraint(Sketcher.Constraint("Vertical", 46, 2, 47, 2))
sketch2.addConstraint(Sketcher.Constraint("Vertical", 45, 2, 48, 2))
sketch2.addConstraint(Sketcher.Constraint("Vertical", 50, 2, 51, 2))
sketch2.addConstraint(Sketcher.Constraint("Vertical", 49, 2, 52, 2))
sketch2.addConstraint(Sketcher.Constraint("Vertical", 26, 2, 55, 2))
sketch2.addConstraint(Sketcher.Constraint("Vertical", 25, 2, 56, 2))
sketch2.addConstraint(Sketcher.Constraint("Vertical", 30, 2, 59, 2))
sketch2.addConstraint(Sketcher.Constraint("Vertical", 29, 2, 60, 2))
sketch2.addConstraint(Sketcher.Constraint("Vertical", 34, 2, 63, 2))
sketch2.addConstraint(Sketcher.Constraint("Vertical", 33, 2, 64, 2))
sketch2.addConstraint(Sketcher.Constraint("Vertical", 38, 2, 67, 2))
sketch2.addConstraint(Sketcher.Constraint("Vertical", 37, 2, 68, 2))
sketch2.addConstraint(Sketcher.Constraint("Vertical", 74, 2, 75, 2))
sketch2.addConstraint(Sketcher.Constraint("Vertical", 73, 2, 76, 2))
sketch2.addConstraint(Sketcher.Constraint("Vertical", 78, 2, 79, 2))
sketch2.addConstraint(Sketcher.Constraint("Vertical", 77, 2, 80, 2))
sketch2.addConstraint(Sketcher.Constraint("Vertical", 82, 2, 83, 2))
sketch2.addConstraint(Sketcher.Constraint("Vertical", 81, 2, 84, 2))
sketch2.addConstraint(Sketcher.Constraint("Equal", 26, 28))
sketch2.addConstraint(Sketcher.Constraint("Equal", 30, 32))
sketch2.addConstraint(Sketcher.Constraint("Equal", 34, 36))
sketch2.addConstraint(Sketcher.Constraint("Equal", 54, 72))
sketch2.addConstraint(Sketcher.Constraint("Equal", 86, 23))
sketch2.addConstraint(Sketcher.Constraint("Equal", 70, 39))
sketch2.addConstraint(Sketcher.Constraint("Equal", 41, 43))
sketch2.addConstraint(Sketcher.Constraint("Equal", 45, 47))
sketch2.addConstraint(Sketcher.Constraint("Equal", 49, 51))
sketch2.addConstraint(Sketcher.Constraint("Equal", 37, 55))
sketch2.addConstraint(Sketcher.Constraint("Diameter", 0, Q("4.1 mm")))
sketch2.addConstraint(Sketcher.Constraint("DistanceX", 24, 1, 24, 2, Q("8.8 mm")))
sketch2.addConstraint(Sketcher.Constraint("DistanceX", 40, 1, 40, 2, Q("2.8 mm")))
sketch2.addConstraint(Sketcher.Constraint("DistanceY", 15, 3, -1, 1, Q("74.421162 mm")))
sketch2.addConstraint(Sketcher.Constraint("DistanceX", -1, 1, 19, 3, Q("34.691162 mm")))
sketch2.addConstraint(Sketcher.Constraint("DistanceX", -1, 1, 0, 3, Q("1.457143 mm")))
sketch2.addConstraint(Sketcher.Constraint("DistanceY", 0, 3, -1, 1, Q("185.187143 mm")))
sketch2.addConstraint(Sketcher.Constraint("DistanceX", -1, 1, 1, 3, Q("67.457143 mm")))
sketch2.addConstraint(Sketcher.Constraint("DistanceX", 2, 3, -1, 1, Q("64.542857 mm")))
sketch2.addConstraint(Sketcher.Constraint("DistanceX", 3, 3, -1, 1, Q("142.542857 mm")))
sketch2.addConstraint(Sketcher.Constraint("DistanceY", -1, 1, 3, 3, Q("24.812857 mm")))
sketch2.addConstraint(Sketcher.Constraint("DistanceY", 4, 3, -1, 1, Q("41.187143 mm")))
sketch2.addConstraint(Sketcher.Constraint("DistanceY", 5, 3, -1, 1, Q("107.187143 mm")))
sketch2.addConstraint(Sketcher.Constraint("DistanceY", -1, 1, 6, 3, Q("102.812857 mm")))
sketch2.addConstraint(Sketcher.Constraint("DistanceX", -1, 1, 9, 3, Q("145.457143 mm")))
sketch2.addConstraint(Sketcher.Constraint("DistanceX", -1, 1, 12, 3, Q("50.957143 mm")))
sketch2.addConstraint(Sketcher.Constraint("DistanceY", 12, 3, -1, 1, Q("170.187143 mm")))
sketch2.addConstraint(Sketcher.Constraint("DistanceX", 13, 3, -1, 1, Q("48.042857 mm")))
sketch2.addConstraint(Sketcher.Constraint("DistanceY", 14, 3, -1, 1, Q("88.187143 mm")))
sketch2.addConstraint(Sketcher.Constraint("DistanceX", 15, 3, -1, 1, Q("31.776876 mm")))
sketch2.addConstraint(Sketcher.Constraint("DistanceX", 16, 3, -1, 1, Q("45.542857 mm")))
sketch2.addConstraint(Sketcher.Constraint("DistanceY", 17, 3, -1, 1, Q("7.953124 mm")))
sketch2.addConstraint(Sketcher.Constraint("DistanceY", -1, 1, 18, 3, Q("5.812857 mm")))
sketch2.addConstraint(Sketcher.Constraint("DistanceX", -1, 1, 20, 3, Q("48.457143 mm")))
sketch2.addConstraint(Sketcher.Constraint("DistanceY", 22, 3, -1, 1, Q("125.187143 mm")))
sketch2.addConstraint(Sketcher.Constraint("DistanceX", -1, 1, 23, 2, Q("96.057143 mm")))
sketch2.addConstraint(Sketcher.Constraint("DistanceY", 23, 2, -1, 1, Q("186.587143 mm")))
sketch2.addConstraint(Sketcher.Constraint("DistanceX", -1, 1, 27, 2, Q("30.057143 mm")))
sketch2.addConstraint(Sketcher.Constraint("DistanceX", 31, 2, -1, 1, Q("35.942857 mm")))
sketch2.addConstraint(Sketcher.Constraint("DistanceX", 35, 2, -1, 1, Q("101.942857 mm")))
sketch2.addConstraint(Sketcher.Constraint("DistanceX", 39, 2, -1, 1, Q("143.942857 mm")))
sketch2.addConstraint(Sketcher.Constraint("DistanceY", -1, 1, 39, 2, Q("53.412857 mm")))
sketch2.addConstraint(Sketcher.Constraint("DistanceY", 43, 2, -1, 1, Q("12.587143 mm")))
sketch2.addConstraint(Sketcher.Constraint("DistanceY", 47, 2, -1, 1, Q("78.587143 mm")))
sketch2.addConstraint(Sketcher.Constraint("DistanceY", 51, 2, -1, 1, Q("144.587143 mm")))
sketch2.addConstraint(Sketcher.Constraint("DistanceY", -1, 1, 55, 2, Q("101.412857 mm")))
sketch2.addConstraint(Sketcher.Constraint("DistanceX", -1, 1, 71, 2, Q("144.057143 mm")))
sketch2.setExpression("Constraints[224]", "Params.sketch2_diameter")
sketch2.setExpression("Constraints[225]", "Params.sketch2_width")
sketch2.setExpression("Constraints[226]", "Params.sketch2_width2")
pocket1 = doc.addObject("PartDesign::Pocket", "Pocket")
body.addObject(pocket1)
pocket1.Profile = sketch2
pocket1.setExpression("Length", "Params.pocket1_length")

sketch3 = doc.addObject("Sketcher::SketchObject", "Sketch002")
body.addObject(sketch3)
sketch3.AttachmentSupport = (doc.XY_Plane, [""])
sketch3.MapMode = "FlatFace"
sketch3.AttachmentOffset = App.Placement(App.Vector(0, 0, 2), App.Rotation())
sketch3.addGeometry(Part.Circle(App.Vector(-88.5, -171.2, 0), App.Vector(0, 0, 1), 3), False)
sketch3.addGeometry(Part.Circle(App.Vector(91.5, -171.2, 0), App.Vector(0, 0, 1), 3), False)
sketch3.addGeometry(Part.Circle(App.Vector(-128.5, 48.8, 0), App.Vector(0, 0, 1), 3), False)
sketch3.addGeometry(Part.Circle(App.Vector(-128.5, -131.2, 0), App.Vector(0, 0, 1), 3), False)
sketch3.addGeometry(Part.Circle(App.Vector(91.5, 88.8, 0), App.Vector(0, 0, 1), 3), False)
sketch3.addGeometry(Part.Circle(App.Vector(-88.5, 88.8, 0), App.Vector(0, 0, 1), 3), False)
sketch3.addGeometry(Part.Circle(App.Vector(131.5, -131.2, 0), App.Vector(0, 0, 1), 3), False)
sketch3.addGeometry(Part.Circle(App.Vector(131.5, 48.8, 0), App.Vector(0, 0, 1), 3), False)
sketch3.addConstraint(Sketcher.Constraint("Equal", 0, 1))
sketch3.addConstraint(Sketcher.Constraint("Equal", 1, 2))
sketch3.addConstraint(Sketcher.Constraint("Equal", 2, 3))
sketch3.addConstraint(Sketcher.Constraint("Equal", 3, 4))
sketch3.addConstraint(Sketcher.Constraint("Equal", 4, 5))
sketch3.addConstraint(Sketcher.Constraint("Equal", 5, 6))
sketch3.addConstraint(Sketcher.Constraint("Equal", 6, 7))
sketch3.addConstraint(Sketcher.Constraint("Horizontal", 0, 3, 1, 3))
sketch3.addConstraint(Sketcher.Constraint("Horizontal", 4, 3, 5, 3))
sketch3.addConstraint(Sketcher.Constraint("Horizontal", 3, 3, 6, 3))
sketch3.addConstraint(Sketcher.Constraint("Horizontal", 2, 3, 7, 3))
sketch3.addConstraint(Sketcher.Constraint("Vertical", 2, 3, 3, 3))
sketch3.addConstraint(Sketcher.Constraint("Vertical", 1, 3, 4, 3))
sketch3.addConstraint(Sketcher.Constraint("Vertical", 0, 3, 5, 3))
sketch3.addConstraint(Sketcher.Constraint("Vertical", 6, 3, 7, 3))
sketch3.addConstraint(Sketcher.Constraint("Diameter", 0, Q("6 mm")))
sketch3.addConstraint(Sketcher.Constraint("DistanceX", 0, 3, 1, 3, Q("180 mm")))
sketch3.addConstraint(Sketcher.Constraint("DistanceX", 2, 3, 0, 3, Q("40 mm")))
sketch3.addConstraint(Sketcher.Constraint("DistanceY", 0, 3, 2, 3, Q("220 mm")))
sketch3.addConstraint(Sketcher.Constraint("DistanceY", 0, 3, 3, 3, Q("40 mm")))
sketch3.addConstraint(Sketcher.Constraint("DistanceY", 2, 3, 4, 3, Q("40 mm")))
sketch3.addConstraint(Sketcher.Constraint("DistanceX", 1, 3, 6, 3, Q("40 mm")))
sketch3.addConstraint(Sketcher.Constraint("DistanceX", 0, 3, -1, 1, Q("88.542857 mm")))
sketch3.addConstraint(Sketcher.Constraint("DistanceY", 0, 3, -1, 1, Q("171.187143 mm")))
sketch3.setExpression("Constraints[15]", "Params.sketch3_diameter")
pocket2 = doc.addObject("PartDesign::Pocket", "Pocket001")
body.addObject(pocket2)
pocket2.Profile = sketch3
pocket2.setExpression("Length", "Params.pocket2_length")

sketch4 = doc.addObject("Sketcher::SketchObject", "Sketch003")
body.addObject(sketch4)
sketch4.AttachmentSupport = (doc.XY_Plane, [""])
sketch4.MapMode = "FlatFace"
sketch4.AttachmentOffset = App.Placement(App.Vector(0, 0, 2), App.Rotation())
sketch4.addGeometry(Part.LineSegment(App.Vector(251, 109, 0), App.Vector(151, 109, 0)), False)
sketch4.addGeometry(Part.LineSegment(App.Vector(151, 109, 0), App.Vector(151, -191, 0)), False)
sketch4.addGeometry(Part.LineSegment(App.Vector(151, -191, 0), App.Vector(-149, -191, 0)), False)
sketch4.addGeometry(Part.LineSegment(App.Vector(-149, -191, 0), App.Vector(-149, -231, 0)), False)
sketch4.addGeometry(Part.LineSegment(App.Vector(-149, -231, 0), App.Vector(251, -231, 0)), False)
sketch4.addGeometry(Part.LineSegment(App.Vector(251, -231, 0), App.Vector(251, 109, 0)), False)
sketch4.addConstraint(Sketcher.Constraint("Coincident", 0, 2, 1, 1))
sketch4.addConstraint(Sketcher.Constraint("Coincident", 1, 2, 2, 1))
sketch4.addConstraint(Sketcher.Constraint("Coincident", 2, 2, 3, 1))
sketch4.addConstraint(Sketcher.Constraint("Coincident", 3, 2, 4, 1))
sketch4.addConstraint(Sketcher.Constraint("Coincident", 4, 2, 5, 1))
sketch4.addConstraint(Sketcher.Constraint("Coincident", 5, 2, 0, 1))
sketch4.addConstraint(Sketcher.Constraint("Horizontal", 0))
sketch4.addConstraint(Sketcher.Constraint("Vertical", 1))
sketch4.addConstraint(Sketcher.Constraint("Horizontal", 2))
sketch4.addConstraint(Sketcher.Constraint("Vertical", 3))
sketch4.addConstraint(Sketcher.Constraint("Horizontal", 4))
sketch4.addConstraint(Sketcher.Constraint("Vertical", 5))
sketch4.addConstraint(Sketcher.Constraint("Equal", 2, 1))
sketch4.addConstraint(Sketcher.Constraint("DistanceX", 0, 2, 0, 1, Q("100 mm")))
sketch4.addConstraint(Sketcher.Constraint("DistanceX", 2, 2, 2, 1, Q("300 mm")))
sketch4.addConstraint(Sketcher.Constraint("DistanceY", 3, 2, 3, 1, Q("40 mm")))
sketch4.addConstraint(Sketcher.Constraint("DistanceX", -1, 1, 0, 2, Q("151.457143 mm")))
sketch4.addConstraint(Sketcher.Constraint("DistanceY", -1, 1, 0, 2, Q("108.812857 mm")))
sketch4.setExpression("Constraints[13]", "Params.sketch4_width")
sketch4.setExpression("Constraints[14]", "Params.sketch4_width2")
sketch4.setExpression("Constraints[15]", "Params.sketch4_height")
pad2 = doc.addObject("PartDesign::Pad", "Pad001")
body.addObject(pad2)
pad2.Profile = sketch4
pad2.setExpression("Length", "Params.pad2_length")
pad2.Reversed = True

doc.recompute()
